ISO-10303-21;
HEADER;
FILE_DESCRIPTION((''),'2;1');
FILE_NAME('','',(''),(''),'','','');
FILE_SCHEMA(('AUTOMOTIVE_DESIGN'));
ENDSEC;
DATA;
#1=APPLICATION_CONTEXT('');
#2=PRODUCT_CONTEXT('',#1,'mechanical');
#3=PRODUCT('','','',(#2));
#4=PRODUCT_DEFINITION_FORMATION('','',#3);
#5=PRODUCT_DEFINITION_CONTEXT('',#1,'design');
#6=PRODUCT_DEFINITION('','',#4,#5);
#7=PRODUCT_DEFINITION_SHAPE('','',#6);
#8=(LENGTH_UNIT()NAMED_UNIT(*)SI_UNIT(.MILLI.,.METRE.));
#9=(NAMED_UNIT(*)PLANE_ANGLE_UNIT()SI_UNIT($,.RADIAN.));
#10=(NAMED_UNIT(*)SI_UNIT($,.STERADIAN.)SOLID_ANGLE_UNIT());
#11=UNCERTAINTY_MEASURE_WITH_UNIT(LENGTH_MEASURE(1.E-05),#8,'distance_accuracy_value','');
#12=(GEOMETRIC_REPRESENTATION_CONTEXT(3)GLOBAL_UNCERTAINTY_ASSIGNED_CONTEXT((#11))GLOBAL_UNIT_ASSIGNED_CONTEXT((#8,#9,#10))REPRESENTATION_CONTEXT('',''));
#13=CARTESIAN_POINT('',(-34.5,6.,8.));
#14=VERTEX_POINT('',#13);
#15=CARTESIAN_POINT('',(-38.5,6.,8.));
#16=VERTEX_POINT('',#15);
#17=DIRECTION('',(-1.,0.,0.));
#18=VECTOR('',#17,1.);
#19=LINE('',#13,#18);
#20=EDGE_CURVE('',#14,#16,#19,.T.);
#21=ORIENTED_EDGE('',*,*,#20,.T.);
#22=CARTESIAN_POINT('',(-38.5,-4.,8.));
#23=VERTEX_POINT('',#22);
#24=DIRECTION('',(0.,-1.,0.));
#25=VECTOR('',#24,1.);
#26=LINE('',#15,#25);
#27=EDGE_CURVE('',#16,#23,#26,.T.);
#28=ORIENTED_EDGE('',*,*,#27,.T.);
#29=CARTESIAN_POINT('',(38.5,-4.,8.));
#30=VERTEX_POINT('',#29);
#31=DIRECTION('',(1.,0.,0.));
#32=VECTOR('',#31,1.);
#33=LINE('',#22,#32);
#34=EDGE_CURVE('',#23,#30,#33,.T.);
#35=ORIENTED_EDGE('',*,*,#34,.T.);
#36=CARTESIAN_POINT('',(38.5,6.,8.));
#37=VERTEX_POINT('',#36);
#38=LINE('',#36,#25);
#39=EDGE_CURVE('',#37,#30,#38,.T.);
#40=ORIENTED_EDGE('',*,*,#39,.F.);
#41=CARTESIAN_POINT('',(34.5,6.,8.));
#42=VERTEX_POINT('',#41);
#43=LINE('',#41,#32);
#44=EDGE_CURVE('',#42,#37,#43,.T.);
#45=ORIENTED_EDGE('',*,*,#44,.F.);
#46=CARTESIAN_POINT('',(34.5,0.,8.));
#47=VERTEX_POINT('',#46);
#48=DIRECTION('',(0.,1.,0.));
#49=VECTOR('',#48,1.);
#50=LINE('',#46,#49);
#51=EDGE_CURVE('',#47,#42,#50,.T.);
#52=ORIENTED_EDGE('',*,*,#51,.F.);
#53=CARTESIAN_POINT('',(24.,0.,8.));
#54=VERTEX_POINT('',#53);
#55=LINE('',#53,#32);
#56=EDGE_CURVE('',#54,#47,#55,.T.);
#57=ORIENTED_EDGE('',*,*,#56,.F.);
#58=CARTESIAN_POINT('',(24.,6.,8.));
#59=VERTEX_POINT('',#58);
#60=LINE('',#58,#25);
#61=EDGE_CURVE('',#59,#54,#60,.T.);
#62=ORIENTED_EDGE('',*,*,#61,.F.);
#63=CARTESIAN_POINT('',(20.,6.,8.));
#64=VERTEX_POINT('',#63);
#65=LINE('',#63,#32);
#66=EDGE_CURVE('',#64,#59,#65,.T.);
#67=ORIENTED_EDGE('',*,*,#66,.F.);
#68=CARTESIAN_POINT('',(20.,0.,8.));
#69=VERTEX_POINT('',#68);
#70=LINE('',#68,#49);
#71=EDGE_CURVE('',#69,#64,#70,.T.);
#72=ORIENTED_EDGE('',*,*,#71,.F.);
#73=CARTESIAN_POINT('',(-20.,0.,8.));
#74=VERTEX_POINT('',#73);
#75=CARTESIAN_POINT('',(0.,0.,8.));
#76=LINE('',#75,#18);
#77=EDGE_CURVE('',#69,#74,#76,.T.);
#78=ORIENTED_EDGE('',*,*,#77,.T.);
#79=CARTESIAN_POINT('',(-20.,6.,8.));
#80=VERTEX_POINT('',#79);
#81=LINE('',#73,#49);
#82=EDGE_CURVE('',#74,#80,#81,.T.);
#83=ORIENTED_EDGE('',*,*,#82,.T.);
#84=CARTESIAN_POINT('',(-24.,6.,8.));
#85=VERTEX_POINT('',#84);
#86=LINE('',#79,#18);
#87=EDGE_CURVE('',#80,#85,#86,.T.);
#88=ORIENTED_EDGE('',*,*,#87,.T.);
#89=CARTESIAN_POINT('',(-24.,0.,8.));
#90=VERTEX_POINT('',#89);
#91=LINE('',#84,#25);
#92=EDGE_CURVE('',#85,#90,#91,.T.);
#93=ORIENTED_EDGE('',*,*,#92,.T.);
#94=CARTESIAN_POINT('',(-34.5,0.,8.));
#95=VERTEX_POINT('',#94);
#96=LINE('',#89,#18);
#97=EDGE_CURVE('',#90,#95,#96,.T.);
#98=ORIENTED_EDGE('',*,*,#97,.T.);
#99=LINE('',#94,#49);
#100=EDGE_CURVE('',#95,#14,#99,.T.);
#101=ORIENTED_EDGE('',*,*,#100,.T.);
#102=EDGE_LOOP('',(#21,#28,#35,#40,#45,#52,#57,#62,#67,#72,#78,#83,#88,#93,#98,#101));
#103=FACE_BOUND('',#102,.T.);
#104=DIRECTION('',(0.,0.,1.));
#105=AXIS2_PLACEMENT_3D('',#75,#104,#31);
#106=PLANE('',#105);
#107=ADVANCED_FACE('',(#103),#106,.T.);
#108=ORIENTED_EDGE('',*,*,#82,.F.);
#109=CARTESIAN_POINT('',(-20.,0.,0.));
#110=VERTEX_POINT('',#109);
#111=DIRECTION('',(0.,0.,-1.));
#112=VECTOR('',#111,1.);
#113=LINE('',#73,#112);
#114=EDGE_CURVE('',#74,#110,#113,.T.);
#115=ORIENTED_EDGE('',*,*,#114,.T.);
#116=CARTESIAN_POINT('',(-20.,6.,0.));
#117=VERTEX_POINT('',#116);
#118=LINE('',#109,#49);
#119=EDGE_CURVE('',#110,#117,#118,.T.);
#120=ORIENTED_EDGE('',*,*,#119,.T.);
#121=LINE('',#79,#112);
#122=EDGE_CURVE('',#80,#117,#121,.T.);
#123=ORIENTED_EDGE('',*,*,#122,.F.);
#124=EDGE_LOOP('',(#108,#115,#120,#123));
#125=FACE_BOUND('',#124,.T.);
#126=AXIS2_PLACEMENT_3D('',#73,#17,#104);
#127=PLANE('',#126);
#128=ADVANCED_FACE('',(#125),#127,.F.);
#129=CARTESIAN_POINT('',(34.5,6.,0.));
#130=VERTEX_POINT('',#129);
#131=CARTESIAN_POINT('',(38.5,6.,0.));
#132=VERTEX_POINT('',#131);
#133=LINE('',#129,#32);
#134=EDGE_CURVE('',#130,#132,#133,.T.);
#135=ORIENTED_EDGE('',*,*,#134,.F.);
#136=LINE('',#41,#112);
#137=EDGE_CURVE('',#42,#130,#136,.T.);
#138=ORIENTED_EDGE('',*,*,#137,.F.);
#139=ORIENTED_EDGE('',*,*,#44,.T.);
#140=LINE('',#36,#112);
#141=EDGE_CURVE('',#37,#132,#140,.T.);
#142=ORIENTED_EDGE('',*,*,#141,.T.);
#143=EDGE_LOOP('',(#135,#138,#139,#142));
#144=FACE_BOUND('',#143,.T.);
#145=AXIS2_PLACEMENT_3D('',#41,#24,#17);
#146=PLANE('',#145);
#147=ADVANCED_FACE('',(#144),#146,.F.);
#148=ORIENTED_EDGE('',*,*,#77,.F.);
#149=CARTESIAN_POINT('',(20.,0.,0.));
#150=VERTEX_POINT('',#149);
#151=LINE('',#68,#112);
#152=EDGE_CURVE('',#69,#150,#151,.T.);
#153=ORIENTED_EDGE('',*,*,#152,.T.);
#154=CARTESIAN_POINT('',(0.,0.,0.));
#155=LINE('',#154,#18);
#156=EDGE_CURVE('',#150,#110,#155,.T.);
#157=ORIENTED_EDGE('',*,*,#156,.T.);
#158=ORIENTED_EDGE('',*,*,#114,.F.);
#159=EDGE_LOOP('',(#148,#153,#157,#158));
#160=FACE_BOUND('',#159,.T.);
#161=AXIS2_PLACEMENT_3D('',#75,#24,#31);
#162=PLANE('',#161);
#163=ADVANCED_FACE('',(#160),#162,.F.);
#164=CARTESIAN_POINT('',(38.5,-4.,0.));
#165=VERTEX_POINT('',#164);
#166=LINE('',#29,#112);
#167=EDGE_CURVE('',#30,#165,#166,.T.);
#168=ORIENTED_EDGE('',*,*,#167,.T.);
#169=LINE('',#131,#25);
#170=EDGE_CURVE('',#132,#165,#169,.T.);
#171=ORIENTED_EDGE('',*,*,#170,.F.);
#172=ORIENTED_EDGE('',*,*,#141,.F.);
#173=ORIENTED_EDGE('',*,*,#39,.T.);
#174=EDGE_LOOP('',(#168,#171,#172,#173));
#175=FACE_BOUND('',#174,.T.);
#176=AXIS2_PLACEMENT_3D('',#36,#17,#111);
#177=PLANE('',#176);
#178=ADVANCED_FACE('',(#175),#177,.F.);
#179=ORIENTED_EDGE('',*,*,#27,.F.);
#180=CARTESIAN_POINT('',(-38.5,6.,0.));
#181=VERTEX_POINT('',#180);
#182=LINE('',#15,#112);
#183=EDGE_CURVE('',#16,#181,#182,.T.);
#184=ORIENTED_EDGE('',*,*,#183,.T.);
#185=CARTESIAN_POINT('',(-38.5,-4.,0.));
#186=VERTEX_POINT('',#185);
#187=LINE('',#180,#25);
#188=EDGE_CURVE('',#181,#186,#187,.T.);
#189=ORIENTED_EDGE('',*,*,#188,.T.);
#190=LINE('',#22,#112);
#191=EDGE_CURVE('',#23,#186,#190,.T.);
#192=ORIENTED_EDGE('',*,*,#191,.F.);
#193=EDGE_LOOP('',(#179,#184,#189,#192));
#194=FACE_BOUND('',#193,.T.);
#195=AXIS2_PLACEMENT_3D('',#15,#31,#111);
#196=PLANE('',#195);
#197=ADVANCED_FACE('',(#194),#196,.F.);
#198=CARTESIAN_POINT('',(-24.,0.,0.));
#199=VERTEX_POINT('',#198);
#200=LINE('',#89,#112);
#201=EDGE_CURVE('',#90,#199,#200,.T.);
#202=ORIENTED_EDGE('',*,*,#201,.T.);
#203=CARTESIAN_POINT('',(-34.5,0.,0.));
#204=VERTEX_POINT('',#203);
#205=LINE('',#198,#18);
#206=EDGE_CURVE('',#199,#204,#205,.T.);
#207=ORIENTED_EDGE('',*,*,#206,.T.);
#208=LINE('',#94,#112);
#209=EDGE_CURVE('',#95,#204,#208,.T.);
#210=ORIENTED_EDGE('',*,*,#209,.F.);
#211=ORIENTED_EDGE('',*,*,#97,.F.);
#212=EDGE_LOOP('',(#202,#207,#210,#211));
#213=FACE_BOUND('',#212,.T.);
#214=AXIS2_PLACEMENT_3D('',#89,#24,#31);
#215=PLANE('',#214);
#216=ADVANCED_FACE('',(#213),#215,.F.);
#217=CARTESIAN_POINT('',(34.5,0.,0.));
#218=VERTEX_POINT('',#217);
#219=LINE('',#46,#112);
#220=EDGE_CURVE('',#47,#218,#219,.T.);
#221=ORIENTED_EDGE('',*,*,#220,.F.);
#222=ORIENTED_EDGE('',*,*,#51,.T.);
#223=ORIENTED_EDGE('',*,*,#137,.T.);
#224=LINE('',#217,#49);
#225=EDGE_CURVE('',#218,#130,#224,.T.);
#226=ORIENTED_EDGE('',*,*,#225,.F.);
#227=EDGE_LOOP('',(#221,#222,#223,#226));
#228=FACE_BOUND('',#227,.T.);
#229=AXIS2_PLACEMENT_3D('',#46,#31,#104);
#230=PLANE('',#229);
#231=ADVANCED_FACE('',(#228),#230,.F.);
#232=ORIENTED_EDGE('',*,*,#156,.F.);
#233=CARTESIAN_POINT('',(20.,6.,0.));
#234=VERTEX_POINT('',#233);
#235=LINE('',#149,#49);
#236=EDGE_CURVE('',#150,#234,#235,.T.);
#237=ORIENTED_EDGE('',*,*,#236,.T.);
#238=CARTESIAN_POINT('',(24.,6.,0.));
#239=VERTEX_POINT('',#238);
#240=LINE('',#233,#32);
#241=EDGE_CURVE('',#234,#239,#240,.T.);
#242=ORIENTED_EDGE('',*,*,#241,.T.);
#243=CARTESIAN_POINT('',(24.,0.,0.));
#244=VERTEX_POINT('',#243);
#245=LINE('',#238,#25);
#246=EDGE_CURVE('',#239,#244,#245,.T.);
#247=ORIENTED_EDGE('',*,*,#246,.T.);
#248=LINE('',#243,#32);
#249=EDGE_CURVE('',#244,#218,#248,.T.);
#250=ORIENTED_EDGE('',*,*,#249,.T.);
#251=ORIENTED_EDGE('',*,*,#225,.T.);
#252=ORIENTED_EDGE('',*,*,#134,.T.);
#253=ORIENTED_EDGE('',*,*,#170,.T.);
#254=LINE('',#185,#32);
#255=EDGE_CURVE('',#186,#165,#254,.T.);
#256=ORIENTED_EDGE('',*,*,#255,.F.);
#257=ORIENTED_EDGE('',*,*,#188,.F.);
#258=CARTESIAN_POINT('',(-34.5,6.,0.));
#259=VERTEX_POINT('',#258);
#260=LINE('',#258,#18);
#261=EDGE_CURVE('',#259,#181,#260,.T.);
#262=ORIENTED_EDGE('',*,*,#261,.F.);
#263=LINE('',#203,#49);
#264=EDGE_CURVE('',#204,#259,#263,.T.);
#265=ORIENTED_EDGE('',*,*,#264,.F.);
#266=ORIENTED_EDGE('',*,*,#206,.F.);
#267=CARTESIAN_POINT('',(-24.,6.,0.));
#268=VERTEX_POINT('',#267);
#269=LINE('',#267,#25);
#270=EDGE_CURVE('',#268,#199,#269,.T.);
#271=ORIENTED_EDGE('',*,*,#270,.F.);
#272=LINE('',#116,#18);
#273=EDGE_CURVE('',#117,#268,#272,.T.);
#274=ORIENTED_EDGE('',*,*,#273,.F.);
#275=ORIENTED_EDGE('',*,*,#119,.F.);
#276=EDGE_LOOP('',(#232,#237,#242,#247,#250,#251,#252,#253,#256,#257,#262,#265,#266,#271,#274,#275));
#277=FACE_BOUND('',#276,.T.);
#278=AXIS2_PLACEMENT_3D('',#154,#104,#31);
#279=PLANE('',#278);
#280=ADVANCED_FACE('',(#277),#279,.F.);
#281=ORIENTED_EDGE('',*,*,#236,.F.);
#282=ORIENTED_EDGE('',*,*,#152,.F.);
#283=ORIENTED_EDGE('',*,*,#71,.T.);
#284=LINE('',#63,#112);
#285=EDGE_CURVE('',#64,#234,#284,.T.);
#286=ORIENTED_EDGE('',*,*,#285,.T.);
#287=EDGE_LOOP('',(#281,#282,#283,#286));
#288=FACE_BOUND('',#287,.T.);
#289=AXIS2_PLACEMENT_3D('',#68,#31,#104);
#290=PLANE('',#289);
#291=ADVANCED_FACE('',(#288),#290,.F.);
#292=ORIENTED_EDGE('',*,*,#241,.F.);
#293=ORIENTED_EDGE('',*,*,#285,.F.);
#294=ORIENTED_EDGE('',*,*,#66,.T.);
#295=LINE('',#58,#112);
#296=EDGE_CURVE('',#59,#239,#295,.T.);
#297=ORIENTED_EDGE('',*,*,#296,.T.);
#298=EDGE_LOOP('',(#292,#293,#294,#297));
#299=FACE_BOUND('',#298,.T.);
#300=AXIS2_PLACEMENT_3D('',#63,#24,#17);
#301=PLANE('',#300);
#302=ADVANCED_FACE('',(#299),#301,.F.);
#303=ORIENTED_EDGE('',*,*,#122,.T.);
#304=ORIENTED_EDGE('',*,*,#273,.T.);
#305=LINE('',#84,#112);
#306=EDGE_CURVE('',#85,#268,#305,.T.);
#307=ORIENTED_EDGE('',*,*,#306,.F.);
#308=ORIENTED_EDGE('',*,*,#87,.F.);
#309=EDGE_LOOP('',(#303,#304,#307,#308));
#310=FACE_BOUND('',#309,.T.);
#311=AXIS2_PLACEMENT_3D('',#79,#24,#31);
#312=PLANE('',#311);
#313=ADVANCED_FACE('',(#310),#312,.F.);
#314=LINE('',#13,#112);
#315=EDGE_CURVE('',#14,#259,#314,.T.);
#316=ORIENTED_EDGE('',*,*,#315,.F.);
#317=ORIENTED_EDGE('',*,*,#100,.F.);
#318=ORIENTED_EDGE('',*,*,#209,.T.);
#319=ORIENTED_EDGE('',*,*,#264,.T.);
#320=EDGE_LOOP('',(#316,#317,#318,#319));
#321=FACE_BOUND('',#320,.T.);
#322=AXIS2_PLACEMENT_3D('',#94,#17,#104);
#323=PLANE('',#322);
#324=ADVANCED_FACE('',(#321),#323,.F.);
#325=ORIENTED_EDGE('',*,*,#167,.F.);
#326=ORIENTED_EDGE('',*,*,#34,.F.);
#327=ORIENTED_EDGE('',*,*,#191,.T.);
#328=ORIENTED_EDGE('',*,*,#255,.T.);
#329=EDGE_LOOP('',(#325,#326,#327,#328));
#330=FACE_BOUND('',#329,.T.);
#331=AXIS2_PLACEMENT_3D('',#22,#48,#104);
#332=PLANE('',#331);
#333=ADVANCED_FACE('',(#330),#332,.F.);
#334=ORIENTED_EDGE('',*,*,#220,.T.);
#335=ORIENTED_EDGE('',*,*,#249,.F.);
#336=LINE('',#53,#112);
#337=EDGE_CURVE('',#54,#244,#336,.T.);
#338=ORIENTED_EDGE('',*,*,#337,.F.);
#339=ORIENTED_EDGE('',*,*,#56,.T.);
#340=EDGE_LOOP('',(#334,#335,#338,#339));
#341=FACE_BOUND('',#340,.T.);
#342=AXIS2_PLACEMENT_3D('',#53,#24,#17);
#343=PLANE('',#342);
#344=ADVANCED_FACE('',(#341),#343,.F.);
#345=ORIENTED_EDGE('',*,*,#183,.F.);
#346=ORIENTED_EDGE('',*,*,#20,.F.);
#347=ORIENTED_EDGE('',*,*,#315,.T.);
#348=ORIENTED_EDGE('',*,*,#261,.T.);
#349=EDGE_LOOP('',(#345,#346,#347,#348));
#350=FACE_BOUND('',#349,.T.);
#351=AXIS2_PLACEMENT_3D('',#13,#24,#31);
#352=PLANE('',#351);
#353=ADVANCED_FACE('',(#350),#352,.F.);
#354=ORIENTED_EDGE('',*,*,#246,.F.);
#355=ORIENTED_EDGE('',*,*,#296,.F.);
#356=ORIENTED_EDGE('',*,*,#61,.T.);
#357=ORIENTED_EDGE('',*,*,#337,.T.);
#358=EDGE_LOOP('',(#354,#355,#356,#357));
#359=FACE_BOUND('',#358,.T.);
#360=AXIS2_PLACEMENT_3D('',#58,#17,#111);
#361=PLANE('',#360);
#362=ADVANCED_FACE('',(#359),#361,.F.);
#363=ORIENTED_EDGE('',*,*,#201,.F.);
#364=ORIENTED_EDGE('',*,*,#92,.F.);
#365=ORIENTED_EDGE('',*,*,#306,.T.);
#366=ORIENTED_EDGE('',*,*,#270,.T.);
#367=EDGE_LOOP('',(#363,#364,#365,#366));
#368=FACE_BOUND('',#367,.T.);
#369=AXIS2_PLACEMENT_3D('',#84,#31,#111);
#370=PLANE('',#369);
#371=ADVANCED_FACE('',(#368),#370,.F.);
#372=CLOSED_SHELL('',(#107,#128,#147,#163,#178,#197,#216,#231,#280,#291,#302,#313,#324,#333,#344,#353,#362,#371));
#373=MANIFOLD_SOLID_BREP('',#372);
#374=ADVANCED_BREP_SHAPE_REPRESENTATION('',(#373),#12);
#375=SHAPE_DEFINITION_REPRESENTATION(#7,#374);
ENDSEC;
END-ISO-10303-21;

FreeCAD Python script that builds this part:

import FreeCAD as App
import Part
import Sketcher

doc = App.newDocument("Part")
body = doc.addObject("PartDesign::Body", "Body")

# Sketch on XY plane
sketch1 = body.newObject("Sketcher::SketchObject", "Sketch")
sketch1.AttachmentSupport = (doc.getObject("XY_Plane"), [""])
sketch1.MapMode = "FlatFace"
sketch1.addGeometry([
    Part.LineSegment(App.Vector(0, 0, 0), App.Vector(-20, 0, 0)),  # 0
    Part.LineSegment(App.Vector(-20, 0, 0), App.Vector(-20, 6, 0)),  # 1
    Part.LineSegment(App.Vector(-20, 6, 0), App.Vector(-24, 6, 0)),  # 2
    Part.LineSegment(App.Vector(-24, 6, 0), App.Vector(-24, 0, 0)),  # 3
    Part.LineSegment(App.Vector(-24, 0, 0), App.Vector(-34.5, 0, 0)),  # 4
    Part.LineSegment(App.Vector(-34.5, 0, 0), App.Vector(-34.5, 6, 0)),  # 5
    Part.LineSegment(App.Vector(-34.5, 6, 0), App.Vector(-38.5, 6, 0)),  # 6
    Part.LineSegment(App.Vector(-38.5, 6, 0), App.Vector(-38.5, -4, 0)),  # 7
    Part.LineSegment(App.Vector(-38.5, -4, 0), App.Vector(0, -4, 0)),  # 8
    Part.LineSegment(App.Vector(0, -4, 0), App.Vector(0, 0, 0)),  # 9
], False)
sketch1.addConstraint([
    Sketcher.Constraint("Coincident", 0, 2, 1, 1),
    Sketcher.Constraint("Coincident", 1, 2, 2, 1),
    Sketcher.Constraint("Coincident", 2, 2, 3, 1),
    Sketcher.Constraint("Coincident", 3, 2, 4, 1),
    Sketcher.Constraint("Coincident", 4, 2, 5, 1),
    Sketcher.Constraint("Coincident", 5, 2, 6, 1),
    Sketcher.Constraint("Coincident", 6, 2, 7, 1),
    Sketcher.Constraint("Coincident", 7, 2, 8, 1),
    Sketcher.Constraint("Coincident", 8, 2, 9, 1),
    Sketcher.Constraint("Coincident", 9, 2, 0, 1),
    Sketcher.Constraint("Horizontal", 0),
    Sketcher.Constraint("Vertical", 1),
    Sketcher.Constraint("Horizontal", 2),
    Sketcher.Constraint("Vertical", 3),
    Sketcher.Constraint("Horizontal", 4),
    Sketcher.Constraint("Vertical", 5),
    Sketcher.Constraint("Horizontal", 6),
    Sketcher.Constraint("Vertical", 7),
    Sketcher.Constraint("Horizontal", 8),
    Sketcher.Constraint("Vertical", 9),
    Sketcher.Constraint("Coincident", 9, 2, -1, 1),
    Sketcher.Constraint("PointOnObject", 3, 2, -1),
    Sketcher.Constraint("Horizontal", 2, 2, 5, 2),
    Sketcher.Constraint("Equal", 2, 6),
    Sketcher.Constraint("Equal", 6, 9),
    Sketcher.Constraint("DistanceX", 0, 2, 0, 1, 20.0),
    Sketcher.Constraint("DistanceX", 2, 2, 2, 1, 4.0),
    Sketcher.Constraint("DistanceY", 1, 1, 1, 2, 6.0),
    Sketcher.Constraint("DistanceX", 4, 2, 4, 1, 10.5),
])
pad1 = body.newObject("PartDesign::Pad", "Pad")
pad1.Profile = sketch1
pad1.Length = 8
body2 = doc.addObject("PartDesign::Body", "Body001")
doc.recompute()

body2.BaseFeature = body
doc.recompute()

mirroring = doc.addObject("Part::Mirroring", "Mirroring")
mirroring.Source = body
mirroring.Base = App.Vector(0, 0, 0)
mirroring.Normal = App.Vector(1, 0, 0)
body3 = doc.addObject("PartDesign::Body", "Body002")
body3.BaseFeature = mirroring
boolean = body2.newObject("PartDesign::Boolean", "Boolean")
boolean.Type = "Fuse"
boolean.addObjects([body3])
doc.recompute()
mirroring.Visibility = False

doc.recompute()
